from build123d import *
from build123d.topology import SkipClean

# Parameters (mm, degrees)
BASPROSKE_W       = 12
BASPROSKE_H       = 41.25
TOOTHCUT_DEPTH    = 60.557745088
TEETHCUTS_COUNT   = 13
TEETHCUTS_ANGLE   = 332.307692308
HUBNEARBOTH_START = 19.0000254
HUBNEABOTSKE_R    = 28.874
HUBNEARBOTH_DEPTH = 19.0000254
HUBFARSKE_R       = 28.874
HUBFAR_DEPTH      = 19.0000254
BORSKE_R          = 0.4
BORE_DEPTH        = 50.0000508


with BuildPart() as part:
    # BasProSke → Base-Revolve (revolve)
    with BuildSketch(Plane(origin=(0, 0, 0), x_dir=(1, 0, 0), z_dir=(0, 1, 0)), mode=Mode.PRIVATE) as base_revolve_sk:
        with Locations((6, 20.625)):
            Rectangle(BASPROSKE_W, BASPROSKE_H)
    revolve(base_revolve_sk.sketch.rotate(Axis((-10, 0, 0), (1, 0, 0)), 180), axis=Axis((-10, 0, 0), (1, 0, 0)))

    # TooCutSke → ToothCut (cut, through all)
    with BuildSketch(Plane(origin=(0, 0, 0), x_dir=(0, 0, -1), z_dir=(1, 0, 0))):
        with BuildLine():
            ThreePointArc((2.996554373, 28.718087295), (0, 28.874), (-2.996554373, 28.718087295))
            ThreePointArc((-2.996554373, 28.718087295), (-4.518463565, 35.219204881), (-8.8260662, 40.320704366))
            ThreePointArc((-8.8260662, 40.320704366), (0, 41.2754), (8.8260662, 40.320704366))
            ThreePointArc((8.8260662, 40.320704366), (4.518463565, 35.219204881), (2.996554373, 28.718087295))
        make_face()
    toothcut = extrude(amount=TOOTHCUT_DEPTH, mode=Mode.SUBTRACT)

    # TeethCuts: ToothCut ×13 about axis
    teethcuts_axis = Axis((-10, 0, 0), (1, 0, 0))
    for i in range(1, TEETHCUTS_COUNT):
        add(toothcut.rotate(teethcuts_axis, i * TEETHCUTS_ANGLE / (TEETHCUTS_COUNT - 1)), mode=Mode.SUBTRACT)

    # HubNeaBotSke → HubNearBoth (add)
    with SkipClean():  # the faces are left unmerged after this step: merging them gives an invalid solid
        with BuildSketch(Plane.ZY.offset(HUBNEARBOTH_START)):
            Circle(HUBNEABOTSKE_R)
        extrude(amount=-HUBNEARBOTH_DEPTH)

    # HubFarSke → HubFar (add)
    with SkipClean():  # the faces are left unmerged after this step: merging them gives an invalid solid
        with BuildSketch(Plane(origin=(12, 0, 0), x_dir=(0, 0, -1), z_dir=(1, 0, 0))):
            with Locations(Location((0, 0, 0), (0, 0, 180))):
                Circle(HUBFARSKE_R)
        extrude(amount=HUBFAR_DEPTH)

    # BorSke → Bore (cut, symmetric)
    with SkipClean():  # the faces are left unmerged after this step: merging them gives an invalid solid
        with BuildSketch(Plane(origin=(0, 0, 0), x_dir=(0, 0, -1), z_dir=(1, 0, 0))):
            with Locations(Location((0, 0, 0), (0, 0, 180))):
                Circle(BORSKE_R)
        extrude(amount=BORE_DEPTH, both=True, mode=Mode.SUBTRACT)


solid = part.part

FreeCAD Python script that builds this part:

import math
import FreeCAD as App
import Part
import Sketcher
from FreeCAD import Vector

doc = App.newDocument("Part")
body = doc.addObject("PartDesign::Body", "Body")

sketch1 = body.newObject("Sketcher::SketchObject", "Sketch")
sketch1.AttachmentSupport = (doc.getObject("XZ_Plane"), [""])
sketch1.MapMode = "FlatFace"
sketch1.addGeometry(Part.LineSegment(Vector(0, -41, 0), Vector(0, 0, 0)), False)
sketch1.addGeometry(Part.LineSegment(Vector(0, 0, 0), Vector(12, 0, 0)), False)
sketch1.addGeometry(Part.LineSegment(Vector(12, 0, 0), Vector(12, -41, 0)), False)
sketch1.addGeometry(Part.LineSegment(Vector(12, -41, 0), Vector(0, -41, 0)), False)
sketch1.addConstraint(Sketcher.Constraint("Coincident", 0, 2, 1, 1))
sketch1.addConstraint(Sketcher.Constraint("Coincident", 1, 2, 2, 1))
sketch1.addConstraint(Sketcher.Constraint("Coincident", 2, 2, 3, 1))
sketch1.addConstraint(Sketcher.Constraint("Coincident", 3, 2, 0, 1))
sketch1.addConstraint(Sketcher.Constraint("Vertical", 0))
sketch1.addConstraint(Sketcher.Constraint("Horizontal", 1))
sketch1.addConstraint(Sketcher.Constraint("Vertical", 2))
sketch1.addConstraint(Sketcher.Constraint("Horizontal", 3))
sketch1.addConstraint(Sketcher.Constraint("Coincident", 0, 2, -1, 1))
sketch1.addConstraint(Sketcher.Constraint("DistanceX", 1, 1, 1, 2, 12.0))
sketch1.addConstraint(Sketcher.Constraint("DistanceY", 0, 1, 0, 2, 41.25))
revolution = body.newObject("PartDesign::Revolution", "Revolution")
revolution.Profile = sketch1
revolution.ReferenceAxis = (sketch1, ["H_Axis"])
revolution.Angle = 360

sketch2 = body.newObject("Sketcher::SketchObject", "Sketch001")
sketch2.AttachmentSupport = (doc.getObject("YZ_Plane"), [""])
sketch2.MapMode = "FlatFace"
sketch2.addGeometry(Part.ArcOfCircle(Part.Circle(Vector(0, 0, 0), Vector(0, 0, 1), 29), math.radians(-5.96), math.radians(5.96)), False)
sketch2.addGeometry(Part.ArcOfCircle(Part.Circle(Vector(29, -17, 0), Vector(0, 0, 1), 14), math.radians(36), math.radians(90)), False)
sketch2.addGeometry(Part.ArcOfCircle(Part.Circle(Vector(0, 0, 0), Vector(0, 0, 1), 41), math.radians(-12), math.radians(12)), False)
sketch2.addGeometry(Part.ArcOfCircle(Part.Circle(Vector(29, 17, 0), Vector(0, 0, 1), 14), math.radians(-90), math.radians(-36)), False)
sketch2.addConstraint(Sketcher.Constraint("Coincident", 0, 1, 1, 2))
sketch2.addConstraint(Sketcher.Constraint("Coincident", 1, 1, 2, 1))
sketch2.addConstraint(Sketcher.Constraint("Coincident", 2, 2, 3, 2))
sketch2.addConstraint(Sketcher.Constraint("Coincident", 3, 1, 0, 2))
sketch2.addConstraint(Sketcher.Constraint("Coincident", 0, 3, -1, 1))
sketch2.addConstraint(Sketcher.Constraint("Coincident", 2, 3, -1, 1))
sketch2.addConstraint(Sketcher.Constraint("Equal", 1, 3))
sketch2.addConstraint(Sketcher.Constraint("Symmetric", 1, 3, 3, 3, -1))
sketch2.addConstraint(Sketcher.Constraint("Radius", 1, 14.3))
sketch2.addConstraint(Sketcher.Constraint("Radius", 0, 28.874))
sketch2.addConstraint(Sketcher.Constraint("Radius", 2, 41.2754))
sketch2.addConstraint(Sketcher.Constraint("DistanceY", 1, 3, 3, 3, 34.592648))
sketch2.addConstraint(Sketcher.Constraint("DistanceY", 1, 1, 0, 1, 5.829512))
pocket1 = body.newObject("PartDesign::Pocket", "Pocket")
pocket1.Profile = sketch2
pocket1.Type = "ThroughAll"
pocket1.Reversed = True
doc.recompute()

polarpattern = body.newObject("PartDesign::PolarPattern", "PolarPattern")
polarpattern.Originals = [pocket1]
polarpattern.Axis = (doc.getObject("X_Axis"), [""])
polarpattern.Angle = 360
polarpattern.Occurrences = 13
body.Tip = polarpattern

sketch3 = body.newObject("Sketcher::SketchObject", "Sketch002")
sketch3.AttachmentSupport = (doc.getObject("YZ_Plane"), [""])
sketch3.MapMode = "FlatFace"
sketch3.AttachmentOffset = App.Placement(Vector(0, 0, -19.000025), App.Rotation())
sketch3.addGeometry(Part.Circle(Vector(0, 0, 0), Vector(0, 0, 1), 29), False)
sketch3.addConstraint(Sketcher.Constraint("Coincident", 0, 3, -1, 1))
sketch3.addConstraint(Sketcher.Constraint("Diameter", 0, 57.748))
pad1 = body.newObject("PartDesign::Pad", "Pad")
pad1.Profile = sketch3
pad1.Length = 19.000025

sketch4 = body.newObject("Sketcher::SketchObject", "Sketch003")
sketch4.AttachmentSupport = (doc.getObject("YZ_Plane"), [""])
sketch4.MapMode = "FlatFace"
sketch4.AttachmentOffset = App.Placement(Vector(0, 0, 12), App.Rotation())
sketch4.addGeometry(Part.Circle(Vector(0, 0, 0), Vector(0, 0, 1), 29), False)
sketch4.addConstraint(Sketcher.Constraint("Coincident", 0, 3, -1, 1))
sketch4.addConstraint(Sketcher.Constraint("Diameter", 0, 57.748))
pad2 = body.newObject("PartDesign::Pad", "Pad001")
pad2.Profile = sketch4
pad2.Length = 19.000025

sketch5 = body.newObject("Sketcher::SketchObject", "Sketch004")
sketch5.AttachmentSupport = (doc.getObject("YZ_Plane"), [""])
sketch5.MapMode = "FlatFace"
sketch5.addGeometry(Part.Circle(Vector(0, 0, 0), Vector(0, 0, 1), 0.4), False)
sketch5.addConstraint(Sketcher.Constraint("Coincident", 0, 3, -1, 1))
sketch5.addConstraint(Sketcher.Constraint("Diameter", 0, 0.8))
pocket2 = body.newObject("PartDesign::Pocket", "Pocket001")
pocket2.Profile = sketch5
pocket2.Length = 100.000102
pocket2.Midplane = True

doc.recompute()
